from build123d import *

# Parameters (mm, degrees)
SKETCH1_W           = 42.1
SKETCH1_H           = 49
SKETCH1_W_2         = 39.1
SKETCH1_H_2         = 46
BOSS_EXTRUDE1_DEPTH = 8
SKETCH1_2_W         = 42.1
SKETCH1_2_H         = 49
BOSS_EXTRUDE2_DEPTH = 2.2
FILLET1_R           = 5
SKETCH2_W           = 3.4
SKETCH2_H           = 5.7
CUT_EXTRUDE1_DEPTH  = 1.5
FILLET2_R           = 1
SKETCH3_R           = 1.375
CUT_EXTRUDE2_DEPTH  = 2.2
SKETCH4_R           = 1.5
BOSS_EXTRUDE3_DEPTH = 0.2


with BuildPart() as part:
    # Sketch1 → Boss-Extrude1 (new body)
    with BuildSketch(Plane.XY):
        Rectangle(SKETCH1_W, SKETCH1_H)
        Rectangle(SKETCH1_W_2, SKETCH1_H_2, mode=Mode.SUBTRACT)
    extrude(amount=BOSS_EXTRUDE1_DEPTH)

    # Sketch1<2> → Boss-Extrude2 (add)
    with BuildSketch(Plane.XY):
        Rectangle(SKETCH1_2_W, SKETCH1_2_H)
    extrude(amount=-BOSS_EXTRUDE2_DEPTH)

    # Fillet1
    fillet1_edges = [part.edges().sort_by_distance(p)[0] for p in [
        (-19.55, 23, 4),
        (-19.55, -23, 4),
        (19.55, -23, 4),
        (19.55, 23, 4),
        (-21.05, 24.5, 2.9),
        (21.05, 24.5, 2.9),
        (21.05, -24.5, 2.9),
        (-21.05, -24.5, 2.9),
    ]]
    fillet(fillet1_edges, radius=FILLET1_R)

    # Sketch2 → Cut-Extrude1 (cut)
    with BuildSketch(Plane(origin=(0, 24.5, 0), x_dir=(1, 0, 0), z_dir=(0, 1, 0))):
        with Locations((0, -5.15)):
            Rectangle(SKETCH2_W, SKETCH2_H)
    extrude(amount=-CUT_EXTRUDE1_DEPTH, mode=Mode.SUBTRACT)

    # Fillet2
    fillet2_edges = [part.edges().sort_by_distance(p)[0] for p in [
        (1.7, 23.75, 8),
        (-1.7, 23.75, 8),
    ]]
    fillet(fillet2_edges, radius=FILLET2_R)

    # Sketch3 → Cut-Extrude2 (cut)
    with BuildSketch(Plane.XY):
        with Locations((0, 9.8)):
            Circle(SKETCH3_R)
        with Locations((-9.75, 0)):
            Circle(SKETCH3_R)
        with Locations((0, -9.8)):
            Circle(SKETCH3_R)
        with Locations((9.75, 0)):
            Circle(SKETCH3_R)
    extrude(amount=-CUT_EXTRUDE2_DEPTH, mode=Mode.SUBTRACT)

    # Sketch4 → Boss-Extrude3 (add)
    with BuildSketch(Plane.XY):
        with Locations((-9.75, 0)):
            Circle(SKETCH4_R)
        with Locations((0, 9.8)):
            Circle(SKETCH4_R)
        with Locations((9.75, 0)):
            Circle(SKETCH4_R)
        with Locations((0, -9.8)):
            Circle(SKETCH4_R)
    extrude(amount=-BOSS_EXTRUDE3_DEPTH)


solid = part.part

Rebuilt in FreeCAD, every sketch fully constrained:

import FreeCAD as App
import Part
import Sketcher


def edges_at(feature, points):
    """Names of the edges that pass closest to the given points."""
    edges = feature.Shape.Edges
    near = lambda p: min(range(len(edges)), key=lambda i: edges[i].distToShape(Part.Vertex(*p))[0])
    return sorted({f"Edge{near(p) + 1}" for p in points})

doc = App.newDocument("Part")
params = doc.addObject("Spreadsheet::Sheet", "Params")
for row, (alias, value) in enumerate([
    ("sketch1_height", "49 mm"),
    ("sketch1_height2", "46 mm"),
    ("sketch1_width", "42.1 mm"),
    ("sketch1_width2", "39.1 mm"),
    ("pad1_length", "8 mm"),
    ("sketch2_height", "49 mm"),
    ("sketch2_width", "42.1 mm"),
    ("pad2_length", "2.2 mm"),
    ("fillet_radius", "5 mm"),
    ("sketch3_width", "3.4 mm"),
    ("sketch3_height", "5.7 mm"),
    ("pocket1_length", "1.5 mm"),
    ("fillet2_radius", "1 mm"),
    ("sketch4_diameter", "2.75 mm"),
    ("pocket2_length", "2.2 mm"),
    ("sketch5_diameter", "3 mm"),
    ("pad3_length", "0.2 mm"),
], start=1):
    params.set(f"A{row}", alias)
    params.set(f"B{row}", "=" + value)
    params.setAlias(f"B{row}", alias)

body = doc.addObject("PartDesign::Body", "Body")

# Sketch on XY plane
sketch1 = doc.addObject("Sketcher::SketchObject", "Sketch")
body.addObject(sketch1)
sketch1.AttachmentSupport = (doc.XY_Plane, [""])
sketch1.MapMode = "FlatFace"
sketch1.addGeometry([
    Part.LineSegment(App.Vector(-21, 24, 0), App.Vector(-21, -24, 0)),  # 0
    Part.LineSegment(App.Vector(-21, -24, 0), App.Vector(21, -24, 0)),  # 1
    Part.LineSegment(App.Vector(21, -24, 0), App.Vector(21, 24, 0)),  # 2
    Part.LineSegment(App.Vector(21, 24, 0), App.Vector(-21, 24, 0)),  # 3
    Part.LineSegment(App.Vector(20, -23, 0), App.Vector(-20, -23, 0)),  # 4
    Part.LineSegment(App.Vector(-20, -23, 0), App.Vector(-20, 23, 0)),  # 5
    Part.LineSegment(App.Vector(-20, 23, 0), App.Vector(20, 23, 0)),  # 6
    Part.LineSegment(App.Vector(20, 23, 0), App.Vector(20, -23, 0)),  # 7
], False)
sketch1.addConstraint([
    Sketcher.Constraint("Coincident", 0, 2, 1, 1),
    Sketcher.Constraint("Coincident", 1, 2, 2, 1),
    Sketcher.Constraint("Coincident", 2, 2, 3, 1),
    Sketcher.Constraint("Coincident", 3, 2, 0, 1),
    Sketcher.Constraint("Coincident", 4, 2, 5, 1),
    Sketcher.Constraint("Coincident", 5, 2, 6, 1),
    Sketcher.Constraint("Coincident", 6, 2, 7, 1),
    Sketcher.Constraint("Coincident", 7, 2, 4, 1),
    Sketcher.Constraint("Vertical", 0),
    Sketcher.Constraint("Horizontal", 1),
    Sketcher.Constraint("Vertical", 2),
    Sketcher.Constraint("Horizontal", 3),
    Sketcher.Constraint("Horizontal", 4),
    Sketcher.Constraint("Vertical", 5),
    Sketcher.Constraint("Horizontal", 6),
    Sketcher.Constraint("Vertical", 7),
    Sketcher.Constraint("Symmetric", 0, 2, 2, 2, -1, 1),
    Sketcher.Constraint("Symmetric", 4, 2, 6, 2, -1, 1),
    Sketcher.Constraint("DistanceY", 0, 2, 0, 1, 49.0),
    Sketcher.Constraint("DistanceY", 5, 1, 5, 2, 46.0),
    Sketcher.Constraint("DistanceX", 1, 1, 1, 2, 42.1),
    Sketcher.Constraint("DistanceX", 4, 2, 4, 1, 39.1),
])
sketch1.setExpression("Constraints[18]", "Params.sketch1_height")
sketch1.setExpression("Constraints[19]", "Params.sketch1_height2")
sketch1.setExpression("Constraints[20]", "Params.sketch1_width")
sketch1.setExpression("Constraints[21]", "Params.sketch1_width2")
pad1 = doc.addObject("PartDesign::Pad", "Pad")
body.addObject(pad1)
pad1.Profile = sketch1
pad1.setExpression("Length", "Params.pad1_length")

# Sketch on XY plane
sketch2 = doc.addObject("Sketcher::SketchObject", "Sketch001")
body.addObject(sketch2)
sketch2.AttachmentSupport = (doc.XY_Plane, [""])
sketch2.MapMode = "FlatFace"
sketch2.addGeometry([
    Part.LineSegment(App.Vector(-21, 24, 0), App.Vector(-21, -24, 0)),
    Part.LineSegment(App.Vector(-21, -24, 0), App.Vector(21, -24, 0)),
    Part.LineSegment(App.Vector(21, -24, 0), App.Vector(21, 24, 0)),
    Part.LineSegment(App.Vector(21, 24, 0), App.Vector(-21, 24, 0)),
], False)
sketch2.addConstraint([
    Sketcher.Constraint("Coincident", 0, 2, 1, 1),
    Sketcher.Constraint("Coincident", 1, 2, 2, 1),
    Sketcher.Constraint("Coincident", 2, 2, 3, 1),
    Sketcher.Constraint("Coincident", 3, 2, 0, 1),
    Sketcher.Constraint("Vertical", 0),
    Sketcher.Constraint("Horizontal", 1),
    Sketcher.Constraint("Vertical", 2),
    Sketcher.Constraint("Horizontal", 3),
    Sketcher.Constraint("Symmetric", 0, 2, 2, 2, -1, 1),
    Sketcher.Constraint("DistanceY", 0, 2, 0, 1, 49.0),
    Sketcher.Constraint("DistanceX", 1, 1, 1, 2, 42.1),
])
sketch2.setExpression("Constraints[9]", "Params.sketch2_height")
sketch2.setExpression("Constraints[10]", "Params.sketch2_width")
pad2 = doc.addObject("PartDesign::Pad", "Pad001")
body.addObject(pad2)
pad2.Profile = sketch2
pad2.setExpression("Length", "Params.pad2_length")
pad2.Reversed = True
doc.recompute()

fillet = doc.addObject("PartDesign::Fillet", "Fillet")
body.addObject(fillet)
fillet.Base = (pad2, edges_at(pad2, [
    (-19.55, 23, 4),
    (-19.55, -23, 4),
    (19.55, -23, 4),
    (19.55, 23, 4),
    (-21.05, 24.5, 2.9),
    (21.05, 24.5, 2.9),
    (21.05, -24.5, 2.9),
    (-21.05, -24.5, 2.9),
]))
fillet.setExpression("Radius", "Params.fillet_radius")

# Sketch on XZ plane
sketch3 = doc.addObject("Sketcher::SketchObject", "Sketch002")
body.addObject(sketch3)
sketch3.AttachmentSupport = (doc.XZ_Plane, [""])
sketch3.MapMode = "FlatFace"
sketch3.AttachmentOffset = App.Placement(App.Vector(0, 0, -24.5), App.Rotation())
sketch3.addGeometry([
    Part.LineSegment(App.Vector(-1.7, 2.3, 0), App.Vector(-1.7, 8, 0)),
    Part.LineSegment(App.Vector(-1.7, 8, 0), App.Vector(1.7, 8, 0)),
    Part.LineSegment(App.Vector(1.7, 8, 0), App.Vector(1.7, 2.3, 0)),
    Part.LineSegment(App.Vector(1.7, 2.3, 0), App.Vector(-1.7, 2.3, 0)),
], False)
sketch3.addConstraint([
    Sketcher.Constraint("Coincident", 0, 2, 1, 1),
    Sketcher.Constraint("Coincident", 1, 2, 2, 1),
    Sketcher.Constraint("Coincident", 2, 2, 3, 1),
    Sketcher.Constraint("Coincident", 3, 2, 0, 1),
    Sketcher.Constraint("Vertical", 0),
    Sketcher.Constraint("Horizontal", 1),
    Sketcher.Constraint("Vertical", 2),
    Sketcher.Constraint("Horizontal", 3),
    Sketcher.Constraint("DistanceX", 1, 1, 1, 2, 3.4),
    Sketcher.Constraint("DistanceY", 0, 1, 0, 2, 5.7),
    Sketcher.Constraint("DistanceY", -1, 1, 0, 2, 8.0),
    Sketcher.Constraint("DistanceX", 0, 2, -1, 1, 1.7),
])
sketch3.setExpression("Constraints[8]", "Params.sketch3_width")
sketch3.setExpression("Constraints[9]", "Params.sketch3_height")
pocket1 = doc.addObject("PartDesign::Pocket", "Pocket")
body.addObject(pocket1)
pocket1.Profile = sketch3
pocket1.setExpression("Length", "Params.pocket1_length")
pocket1.Reversed = True
doc.recompute()

fillet2 = doc.addObject("PartDesign::Fillet", "Fillet001")
body.addObject(fillet2)
fillet2.Base = (pocket1, edges_at(pocket1, [(1.7, 23.75, 8), (-1.7, 23.75, 8)]))
fillet2.setExpression("Radius", "Params.fillet2_radius")

# Sketch on XY plane
sketch4 = doc.addObject("Sketcher::SketchObject", "Sketch003")
body.addObject(sketch4)
sketch4.AttachmentSupport = (doc.XY_Plane, [""])
sketch4.MapMode = "FlatFace"
sketch4.addGeometry([
    Part.Circle(App.Vector(0, 9.8, 0), App.Vector(0, 0, 1), 1.4),
    Part.Circle(App.Vector(-9.8, 0, 0), App.Vector(0, 0, 1), 1.4),
    Part.Circle(App.Vector(0, -9.8, 0), App.Vector(0, 0, 1), 1.4),
    Part.Circle(App.Vector(9.8, 0, 0), App.Vector(0, 0, 1), 1.4),
], False)
sketch4.addConstraint([
    Sketcher.Constraint("Equal", 0, 1),
    Sketcher.Constraint("Equal", 1, 2),
    Sketcher.Constraint("Equal", 2, 3),
    Sketcher.Constraint("Symmetric", 0, 3, 2, 3, -1, 1),
    Sketcher.Constraint("Symmetric", 1, 3, 3, 3, -1, 1),
    Sketcher.Constraint("PointOnObject", 0, 3, -2),
    Sketcher.Constraint("PointOnObject", 1, 3, -1),
    Sketcher.Constraint("Diameter", 0, 2.75),
    Sketcher.Constraint("DistanceY", -1, 1, 0, 3, 9.8),
    Sketcher.Constraint("DistanceX", 1, 3, 3, 3, 19.5),
])
sketch4.setExpression("Constraints[7]", "Params.sketch4_diameter")
pocket2 = doc.addObject("PartDesign::Pocket", "Pocket001")
body.addObject(pocket2)
pocket2.Profile = sketch4
pocket2.setExpression("Length", "Params.pocket2_length")

# Sketch on XY plane
sketch5 = doc.addObject("Sketcher::SketchObject", "Sketch004")
body.addObject(sketch5)
sketch5.AttachmentSupport = (doc.XY_Plane, [""])
sketch5.MapMode = "FlatFace"
sketch5.addGeometry([
    Part.Circle(App.Vector(-9.8, 0, 0), App.Vector(0, 0, 1), 1.5),
    Part.Circle(App.Vector(0, 9.8, 0), App.Vector(0, 0, 1), 1.5),
    Part.Circle(App.Vector(9.8, 0, 0), App.Vector(0, 0, 1), 1.5),
    Part.Circle(App.Vector(0, -9.8, 0), App.Vector(0, 0, 1), 1.5),
], False)
sketch5.addConstraint([
    Sketcher.Constraint("Equal", 0, 1),
    Sketcher.Constraint("Equal", 1, 2),
    Sketcher.Constraint("Equal", 2, 3),
    Sketcher.Constraint("Symmetric", 0, 3, 2, 3, -1, 1),
    Sketcher.Constraint("Symmetric", 1, 3, 3, 3, -1, 1),
    Sketcher.Constraint("PointOnObject", 0, 3, -1),
    Sketcher.Constraint("PointOnObject", 1, 3, -2),
    Sketcher.Constraint("Diameter", 0, 3.0),
    Sketcher.Constraint("DistanceY", -1, 1, 1, 3, 9.8),
    Sketcher.Constraint("DistanceX", 0, 3, 2, 3, 19.5),
])
sketch5.setExpression("Constraints[7]", "Params.sketch5_diameter")
pad3 = doc.addObject("PartDesign::Pad", "Pad002")
body.addObject(pad3)
pad3.Profile = sketch5
pad3.setExpression("Length", "Params.pad3_length")
pad3.Reversed = True

doc.recompute()
